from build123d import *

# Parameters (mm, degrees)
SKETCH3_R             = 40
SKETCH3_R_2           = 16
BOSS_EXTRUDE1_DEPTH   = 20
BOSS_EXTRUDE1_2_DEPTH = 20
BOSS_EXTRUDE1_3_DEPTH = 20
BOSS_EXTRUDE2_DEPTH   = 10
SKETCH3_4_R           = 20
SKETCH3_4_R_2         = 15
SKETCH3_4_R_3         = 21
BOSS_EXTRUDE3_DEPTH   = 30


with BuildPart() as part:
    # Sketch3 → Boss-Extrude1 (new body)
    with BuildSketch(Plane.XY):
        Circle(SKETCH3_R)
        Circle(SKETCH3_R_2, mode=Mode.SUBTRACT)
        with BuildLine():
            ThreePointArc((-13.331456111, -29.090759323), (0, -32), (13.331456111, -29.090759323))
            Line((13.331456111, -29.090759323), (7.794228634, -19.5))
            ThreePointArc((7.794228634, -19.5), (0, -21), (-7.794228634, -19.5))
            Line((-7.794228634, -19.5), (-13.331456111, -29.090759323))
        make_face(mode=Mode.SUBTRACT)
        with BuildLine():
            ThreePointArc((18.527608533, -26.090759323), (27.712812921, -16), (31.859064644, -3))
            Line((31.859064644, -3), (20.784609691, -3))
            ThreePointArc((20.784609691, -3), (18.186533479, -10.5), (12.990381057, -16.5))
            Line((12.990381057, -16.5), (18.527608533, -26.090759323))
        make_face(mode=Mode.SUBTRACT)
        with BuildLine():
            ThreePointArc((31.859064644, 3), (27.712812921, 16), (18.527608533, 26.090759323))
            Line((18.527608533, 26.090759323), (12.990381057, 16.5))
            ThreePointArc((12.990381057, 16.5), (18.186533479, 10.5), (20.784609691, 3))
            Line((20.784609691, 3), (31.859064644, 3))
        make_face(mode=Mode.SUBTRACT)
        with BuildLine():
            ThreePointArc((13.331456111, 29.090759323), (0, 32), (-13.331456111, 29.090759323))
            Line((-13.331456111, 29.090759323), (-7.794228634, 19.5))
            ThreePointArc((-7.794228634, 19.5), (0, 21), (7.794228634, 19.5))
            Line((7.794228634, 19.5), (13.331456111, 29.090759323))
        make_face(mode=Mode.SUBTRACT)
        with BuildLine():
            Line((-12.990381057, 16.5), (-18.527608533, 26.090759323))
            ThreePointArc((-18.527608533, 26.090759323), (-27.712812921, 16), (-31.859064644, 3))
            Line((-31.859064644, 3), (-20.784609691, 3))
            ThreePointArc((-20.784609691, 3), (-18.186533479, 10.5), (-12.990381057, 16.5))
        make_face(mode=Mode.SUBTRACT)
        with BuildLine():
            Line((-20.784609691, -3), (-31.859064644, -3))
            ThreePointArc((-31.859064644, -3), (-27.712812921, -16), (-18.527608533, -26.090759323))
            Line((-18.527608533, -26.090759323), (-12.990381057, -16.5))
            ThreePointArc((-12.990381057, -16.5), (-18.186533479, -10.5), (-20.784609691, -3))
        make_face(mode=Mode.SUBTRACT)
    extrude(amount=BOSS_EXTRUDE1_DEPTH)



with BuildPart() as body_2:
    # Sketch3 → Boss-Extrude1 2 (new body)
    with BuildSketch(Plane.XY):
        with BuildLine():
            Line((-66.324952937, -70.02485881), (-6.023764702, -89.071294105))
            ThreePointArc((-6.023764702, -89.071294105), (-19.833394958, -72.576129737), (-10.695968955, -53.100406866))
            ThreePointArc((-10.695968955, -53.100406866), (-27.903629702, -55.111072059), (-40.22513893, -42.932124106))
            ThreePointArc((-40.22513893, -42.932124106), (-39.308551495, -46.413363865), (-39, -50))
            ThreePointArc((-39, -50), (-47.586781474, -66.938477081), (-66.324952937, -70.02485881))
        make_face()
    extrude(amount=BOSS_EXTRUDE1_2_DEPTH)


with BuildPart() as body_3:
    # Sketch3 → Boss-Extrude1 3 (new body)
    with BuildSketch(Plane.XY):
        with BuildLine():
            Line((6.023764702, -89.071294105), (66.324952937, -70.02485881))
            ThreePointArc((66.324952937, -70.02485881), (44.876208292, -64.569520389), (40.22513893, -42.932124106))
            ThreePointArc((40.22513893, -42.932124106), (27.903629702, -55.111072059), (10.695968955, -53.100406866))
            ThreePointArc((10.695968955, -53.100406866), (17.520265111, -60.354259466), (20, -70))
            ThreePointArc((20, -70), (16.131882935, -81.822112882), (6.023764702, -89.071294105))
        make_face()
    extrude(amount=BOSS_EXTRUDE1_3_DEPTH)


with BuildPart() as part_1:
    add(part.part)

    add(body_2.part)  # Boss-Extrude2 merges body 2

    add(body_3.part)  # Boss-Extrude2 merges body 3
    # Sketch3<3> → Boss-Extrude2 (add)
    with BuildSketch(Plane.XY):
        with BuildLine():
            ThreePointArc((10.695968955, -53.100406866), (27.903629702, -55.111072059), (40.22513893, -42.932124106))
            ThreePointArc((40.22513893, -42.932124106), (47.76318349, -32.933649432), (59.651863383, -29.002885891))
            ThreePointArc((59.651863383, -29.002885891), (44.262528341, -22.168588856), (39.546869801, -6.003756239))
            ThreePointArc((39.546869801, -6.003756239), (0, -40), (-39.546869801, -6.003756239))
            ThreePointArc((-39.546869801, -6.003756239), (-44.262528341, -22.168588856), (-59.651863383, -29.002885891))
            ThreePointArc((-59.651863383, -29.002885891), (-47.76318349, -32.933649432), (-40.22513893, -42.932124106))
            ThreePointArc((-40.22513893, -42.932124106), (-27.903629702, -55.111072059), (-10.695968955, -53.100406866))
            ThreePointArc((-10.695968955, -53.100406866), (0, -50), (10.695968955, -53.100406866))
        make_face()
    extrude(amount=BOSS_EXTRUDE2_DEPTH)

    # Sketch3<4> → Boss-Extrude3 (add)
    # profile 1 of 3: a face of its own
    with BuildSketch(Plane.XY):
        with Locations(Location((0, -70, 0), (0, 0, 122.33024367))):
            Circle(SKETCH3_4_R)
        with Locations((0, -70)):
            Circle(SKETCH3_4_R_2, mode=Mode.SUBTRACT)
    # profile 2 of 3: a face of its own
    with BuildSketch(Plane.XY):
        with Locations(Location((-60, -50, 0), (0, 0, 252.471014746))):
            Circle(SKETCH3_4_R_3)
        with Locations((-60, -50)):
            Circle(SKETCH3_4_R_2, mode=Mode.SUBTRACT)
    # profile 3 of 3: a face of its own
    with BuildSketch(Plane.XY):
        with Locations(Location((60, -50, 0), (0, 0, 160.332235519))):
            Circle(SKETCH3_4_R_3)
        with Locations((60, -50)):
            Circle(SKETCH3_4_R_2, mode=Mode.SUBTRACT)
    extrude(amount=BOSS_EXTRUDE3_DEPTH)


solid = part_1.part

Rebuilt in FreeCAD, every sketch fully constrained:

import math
import FreeCAD as App
import Part
import Sketcher
from FreeCAD import Vector
Q = App.Units.Quantity

doc = App.newDocument("Part")
body = doc.addObject("PartDesign::Body", "Body")

# Sketch on XY plane
sketch1 = body.newObject("Sketcher::SketchObject", "Sketch")
sketch1.AttachmentSupport = (doc.getObject("XY_Plane"), [""])
sketch1.MapMode = "FlatFace"
sketch1.addGeometry(Part.Circle(Vector(0, 0, 0), Vector(0, 0, 1), 40), False)
sketch1.addGeometry(Part.ArcOfCircle(Part.Circle(Vector(0, 0, 0), Vector(0, 0, 1), 32), math.radians(-115), math.radians(-65)), False)
sketch1.addGeometry(Part.LineSegment(Vector(-13, -29, 0), Vector(-8, -20, 0)), False)
sketch1.addGeometry(Part.ArcOfCircle(Part.Circle(Vector(0, 0, 0), Vector(0, 0, 1), 21), math.radians(-112), math.radians(-68)), False)
sketch1.addGeometry(Part.LineSegment(Vector(8, -20, 0), Vector(13, -29, 0)), False)
sketch1.addGeometry(Part.LineSegment(Vector(-32, -3, 0), Vector(-21, -3, 0)), False)
sketch1.addGeometry(Part.ArcOfCircle(Part.Circle(Vector(0, 0, 0), Vector(0, 0, 1), 21), math.radians(-172), math.radians(-128)), False)
sketch1.addGeometry(Part.LineSegment(Vector(-13, -16, 0), Vector(-19, -26, 0)), False)
sketch1.addGeometry(Part.ArcOfCircle(Part.Circle(Vector(0, 0, 0), Vector(0, 0, 1), 32), math.radians(-175), math.radians(-125)), False)
sketch1.addGeometry(Part.ArcOfCircle(Part.Circle(Vector(0, 0, 0), Vector(0, 0, 1), 32), math.radians(-55), math.radians(-5)), False)
sketch1.addGeometry(Part.LineSegment(Vector(19, -26, 0), Vector(13, -16, 0)), False)
sketch1.addGeometry(Part.ArcOfCircle(Part.Circle(Vector(0, 0, 0), Vector(0, 0, 1), 21), math.radians(-52), math.radians(-8)), False)
sketch1.addGeometry(Part.LineSegment(Vector(21, -3, 0), Vector(32, -3, 0)), False)
sketch1.addGeometry(Part.LineSegment(Vector(-19, 26, 0), Vector(-13, 16, 0)), False)
sketch1.addGeometry(Part.ArcOfCircle(Part.Circle(Vector(0, 0, 0), Vector(0, 0, 1), 21), math.radians(128), math.radians(172)), False)
sketch1.addGeometry(Part.LineSegment(Vector(-21, 3, 0), Vector(-32, 3, 0)), False)
sketch1.addGeometry(Part.ArcOfCircle(Part.Circle(Vector(0, 0, 0), Vector(0, 0, 1), 32), math.radians(125), math.radians(175)), False)
sketch1.addGeometry(Part.Circle(Vector(0, 0, 0), Vector(0, 0, 1), 16), False)
sketch1.addGeometry(Part.ArcOfCircle(Part.Circle(Vector(0, 0, 0), Vector(0, 0, 1), 32), math.radians(5), math.radians(55)), False)
sketch1.addGeometry(Part.LineSegment(Vector(32, 3, 0), Vector(21, 3, 0)), False)
sketch1.addGeometry(Part.ArcOfCircle(Part.Circle(Vector(0, 0, 0), Vector(0, 0, 1), 21), math.radians(8), math.radians(52)), False)
sketch1.addGeometry(Part.LineSegment(Vector(13, 16, 0), Vector(19, 26, 0)), False)
sketch1.addGeometry(Part.ArcOfCircle(Part.Circle(Vector(0, 0, 0), Vector(0, 0, 1), 32), math.radians(65), math.radians(115)), False)
sketch1.addGeometry(Part.LineSegment(Vector(13, 29, 0), Vector(8, 20, 0)), False)
sketch1.addGeometry(Part.ArcOfCircle(Part.Circle(Vector(0, 0, 0), Vector(0, 0, 1), 21), math.radians(68), math.radians(112)), False)
sketch1.addGeometry(Part.LineSegment(Vector(-8, 20, 0), Vector(-13, 29, 0)), False)
sketch1.addConstraint(Sketcher.Constraint("Coincident", 1, 1, 2, 1))
sketch1.addConstraint(Sketcher.Constraint("Coincident", 2, 2, 3, 1))
sketch1.addConstraint(Sketcher.Constraint("Coincident", 3, 2, 4, 1))
sketch1.addConstraint(Sketcher.Constraint("Coincident", 4, 2, 1, 2))
sketch1.addConstraint(Sketcher.Constraint("Coincident", 5, 2, 6, 1))
sketch1.addConstraint(Sketcher.Constraint("Coincident", 6, 2, 7, 1))
sketch1.addConstraint(Sketcher.Constraint("Coincident", 7, 2, 8, 2))
sketch1.addConstraint(Sketcher.Constraint("Coincident", 8, 1, 5, 1))
sketch1.addConstraint(Sketcher.Constraint("Coincident", 9, 1, 10, 1))
sketch1.addConstraint(Sketcher.Constraint("Coincident", 10, 2, 11, 1))
sketch1.addConstraint(Sketcher.Constraint("Coincident", 11, 2, 12, 1))
sketch1.addConstraint(Sketcher.Constraint("Coincident", 12, 2, 9, 2))
sketch1.addConstraint(Sketcher.Constraint("Coincident", 13, 2, 14, 1))
sketch1.addConstraint(Sketcher.Constraint("Coincident", 14, 2, 15, 1))
sketch1.addConstraint(Sketcher.Constraint("Coincident", 15, 2, 16, 2))
sketch1.addConstraint(Sketcher.Constraint("Coincident", 16, 1, 13, 1))
sketch1.addConstraint(Sketcher.Constraint("Coincident", 18, 1, 19, 1))
sketch1.addConstraint(Sketcher.Constraint("Coincident", 19, 2, 20, 1))
sketch1.addConstraint(Sketcher.Constraint("Coincident", 20, 2, 21, 1))
sketch1.addConstraint(Sketcher.Constraint("Coincident", 21, 2, 18, 2))
sketch1.addConstraint(Sketcher.Constraint("Coincident", 22, 1, 23, 1))
sketch1.addConstraint(Sketcher.Constraint("Coincident", 23, 2, 24, 1))
sketch1.addConstraint(Sketcher.Constraint("Coincident", 24, 2, 25, 1))
sketch1.addConstraint(Sketcher.Constraint("Coincident", 25, 2, 22, 2))
sketch1.addConstraint(Sketcher.Constraint("Horizontal", 5))
sketch1.addConstraint(Sketcher.Constraint("Horizontal", 12))
sketch1.addConstraint(Sketcher.Constraint("Horizontal", 15))
sketch1.addConstraint(Sketcher.Constraint("Horizontal", 19))
sketch1.addConstraint(Sketcher.Constraint("Coincident", 0, 3, -1, 1))
sketch1.addConstraint(Sketcher.Constraint("Coincident", 1, 3, -1, 1))
sketch1.addConstraint(Sketcher.Constraint("Coincident", 3, 3, -1, 1))
sketch1.addConstraint(Sketcher.Constraint("Coincident", 6, 3, -1, 1))
sketch1.addConstraint(Sketcher.Constraint("Coincident", 8, 3, -1, 1))
sketch1.addConstraint(Sketcher.Constraint("Coincident", 9, 3, -1, 1))
sketch1.addConstraint(Sketcher.Constraint("Coincident", 11, 3, -1, 1))
sketch1.addConstraint(Sketcher.Constraint("Coincident", 14, 3, -1, 1))
sketch1.addConstraint(Sketcher.Constraint("Coincident", 16, 3, -1, 1))
sketch1.addConstraint(Sketcher.Constraint("Coincident", 17, 3, -1, 1))
sketch1.addConstraint(Sketcher.Constraint("Coincident", 18, 3, -1, 1))
sketch1.addConstraint(Sketcher.Constraint("Coincident", 20, 3, -1, 1))
sketch1.addConstraint(Sketcher.Constraint("Coincident", 22, 3, -1, 1))
sketch1.addConstraint(Sketcher.Constraint("Coincident", 24, 3, -1, 1))
sketch1.addConstraint(Sketcher.Constraint("Equal", 3, 6))
sketch1.addConstraint(Sketcher.Constraint("Equal", 1, 8))
sketch1.addConstraint(Sketcher.Constraint("Equal", 8, 9))
sketch1.addConstraint(Sketcher.Constraint("Equal", 6, 11))
sketch1.addConstraint(Sketcher.Constraint("Equal", 11, 14))
sketch1.addConstraint(Sketcher.Constraint("Equal", 9, 16))
sketch1.addConstraint(Sketcher.Constraint("Equal", 16, 18))
sketch1.addConstraint(Sketcher.Constraint("Equal", 14, 20))
sketch1.addConstraint(Sketcher.Constraint("Equal", 18, 22))
sketch1.addConstraint(Sketcher.Constraint("Equal", 20, 24))
sketch1.addConstraint(Sketcher.Constraint("Parallel", 2, 7))
sketch1.addConstraint(Sketcher.Constraint("Parallel", 4, 10))
sketch1.addConstraint(Sketcher.Constraint("Parallel", 10, 13))
sketch1.addConstraint(Sketcher.Constraint("Parallel", 7, 21))
sketch1.addConstraint(Sketcher.Constraint("Parallel", 21, 23))
sketch1.addConstraint(Sketcher.Constraint("Parallel", 13, 25))
sketch1.addConstraint(Sketcher.Constraint("Horizontal", 2, 2, 3, 2))
sketch1.addConstraint(Sketcher.Constraint("Horizontal", 1, 1, 4, 2))
sketch1.addConstraint(Sketcher.Constraint("Horizontal", 7, 2, 9, 1))
sketch1.addConstraint(Sketcher.Constraint("Horizontal", 8, 1, 11, 2))
sketch1.addConstraint(Sketcher.Constraint("Horizontal", 15, 2, 18, 1))
sketch1.addConstraint(Sketcher.Constraint("Horizontal", 13, 2, 20, 2))
sketch1.addConstraint(Sketcher.Constraint("Horizontal", 23, 2, 24, 2))
sketch1.addConstraint(Sketcher.Constraint("Vertical", 6, 2, 13, 2))
sketch1.addConstraint(Sketcher.Constraint("Vertical", 5, 2, 14, 2))
sketch1.addConstraint(Sketcher.Constraint("Vertical", 4, 2, 22, 1))
sketch1.addConstraint(Sketcher.Constraint("Equal", 4, 7))
sketch1.addConstraint(Sketcher.Constraint("Diameter", 0, 80.0))
sketch1.addConstraint(Sketcher.Constraint("Diameter", 17, 32.0))
sketch1.addConstraint(Sketcher.Constraint("Radius", 1, 32.0))
sketch1.addConstraint(Sketcher.Constraint("Radius", 3, 21.0))
sketch1.addConstraint(Sketcher.Constraint("Angle", 2, Q("60 deg")))
sketch1.addConstraint(Sketcher.Constraint("DistanceY", 5, 2, -1, 1, 3.0))
sketch1.addConstraint(Sketcher.Constraint("DistanceY", 2, 2, 6, 2, 3.0))
pad1 = body.newObject("PartDesign::Pad", "Pad")
pad1.Profile = sketch1
pad1.Length = 20
body2 = doc.addObject("PartDesign::Body", "Body001")

# Sketch on XY plane
sketch2 = body2.newObject("Sketcher::SketchObject", "Sketch001")
sketch2.AttachmentSupport = (doc.getObject("XY_Plane001"), [""])
sketch2.MapMode = "FlatFace"
sketch2.addGeometry(Part.LineSegment(Vector(-66, -70, 0), Vector(-6, -89, 0)), False)
sketch2.addGeometry(Part.ArcOfCircle(Part.Circle(Vector(0, -70, 0), Vector(0, 0, 1), 20), math.radians(122), math.radians(252)), False)
sketch2.addGeometry(Part.ArcOfCircle(Part.Circle(Vector(-21, -36, 0), Vector(0, 0, 1), 20), math.radians(-160), math.radians(-58)), False)
sketch2.addGeometry(Part.ArcOfCircle(Part.Circle(Vector(-60, -50, 0), Vector(0, 0, 1), 21), math.radians(0), math.radians(19.67)), False)
sketch2.addGeometry(Part.ArcOfCircle(Part.Circle(Vector(-60, -50, 0), Vector(0, 0, 1), 21), math.radians(-108), math.radians(0)), False)
sketch2.addConstraint(Sketcher.Constraint("Tangent", 0, 2, 1, 2))
sketch2.addConstraint(Sketcher.Constraint("Tangent", 1, 1, 2, 2))
sketch2.addConstraint(Sketcher.Constraint("Tangent", 2, 1, 3, 2))
sketch2.addConstraint(Sketcher.Constraint("Tangent", 3, 1, 4, 2))
sketch2.addConstraint(Sketcher.Constraint("Tangent", 4, 1, 0, 1))
sketch2.addConstraint(Sketcher.Constraint("Equal", 1, 2))
sketch2.addConstraint(Sketcher.Constraint("Equal", 3, 4))
sketch2.addConstraint(Sketcher.Constraint("PointOnObject", 1, 3, -2))
sketch2.addConstraint(Sketcher.Constraint("Horizontal", 4, 3, 3, 1))
sketch2.addConstraint(Sketcher.Constraint("Radius", 1, 20.0))
sketch2.addConstraint(Sketcher.Constraint("Radius", 3, 21.0))
sketch2.addConstraint(Sketcher.Constraint("DistanceY", 1, 3, -1, 1, 70.0))
sketch2.addConstraint(Sketcher.Constraint("DistanceX", 3, 3, -1, 1, 60.0))
sketch2.addConstraint(Sketcher.Constraint("DistanceY", 3, 3, -1, 1, 50.0))
pad2 = body2.newObject("PartDesign::Pad", "Pad001")
pad2.Profile = sketch2
pad2.Length = 20
body3 = doc.addObject("PartDesign::Body", "Body002")

# Sketch on XY plane
sketch3 = body3.newObject("Sketcher::SketchObject", "Sketch002")
sketch3.AttachmentSupport = (doc.getObject("XY_Plane002"), [""])
sketch3.MapMode = "FlatFace"
sketch3.addGeometry(Part.LineSegment(Vector(6, -89, 0), Vector(66, -70, 0)), False)
sketch3.addGeometry(Part.ArcOfCircle(Part.Circle(Vector(60, -50, 0), Vector(0, 0, 1), 21), math.radians(160), math.radians(288)), False)
sketch3.addGeometry(Part.ArcOfCircle(Part.Circle(Vector(21, -36, 0), Vector(0, 0, 1), 20), math.radians(-122), math.radians(-20)), False)
sketch3.addGeometry(Part.ArcOfCircle(Part.Circle(Vector(0, -70, 0), Vector(0, 0, 1), 20), math.radians(0), math.radians(58)), False)
sketch3.addGeometry(Part.ArcOfCircle(Part.Circle(Vector(0, -70, 0), Vector(0, 0, 1), 20), math.radians(-72), math.radians(0)), False)
sketch3.addConstraint(Sketcher.Constraint("Tangent", 0, 2, 1, 2))
sketch3.addConstraint(Sketcher.Constraint("Tangent", 1, 1, 2, 2))
sketch3.addConstraint(Sketcher.Constraint("Tangent", 2, 1, 3, 2))
sketch3.addConstraint(Sketcher.Constraint("Tangent", 3, 1, 4, 2))
sketch3.addConstraint(Sketcher.Constraint("Tangent", 4, 1, 0, 1))
sketch3.addConstraint(Sketcher.Constraint("Equal", 2, 3))
sketch3.addConstraint(Sketcher.Constraint("Equal", 3, 4))
sketch3.addConstraint(Sketcher.Constraint("PointOnObject", 3, 3, -2))
sketch3.addConstraint(Sketcher.Constraint("Horizontal", 4, 3, 3, 1))
sketch3.addConstraint(Sketcher.Constraint("Radius", 1, 21.0))
sketch3.addConstraint(Sketcher.Constraint("Radius", 2, 20.0))
sketch3.addConstraint(Sketcher.Constraint("DistanceX", -1, 1, 1, 3, 60.0))
sketch3.addConstraint(Sketcher.Constraint("DistanceY", 1, 3, -1, 1, 50.0))
sketch3.addConstraint(Sketcher.Constraint("DistanceY", 3, 3, -1, 1, 70.0))
pad3 = body3.newObject("PartDesign::Pad", "Pad002")
pad3.Profile = sketch3
pad3.Length = 20
body.AllowCompound = True
doc.recompute()

boolean = body.newObject("PartDesign::Boolean", "Boolean")
boolean.Type = "Fuse"
boolean.addObjects([body2])
doc.recompute()

boolean2 = body.newObject("PartDesign::Boolean", "Boolean001")
boolean2.Type = "Fuse"
boolean2.addObjects([body3])

# Sketch on XY plane
sketch4 = body.newObject("Sketcher::SketchObject", "Sketch003")
sketch4.AttachmentSupport = (doc.getObject("XY_Plane"), [""])
sketch4.MapMode = "FlatFace"
sketch4.addGeometry(Part.ArcOfCircle(Part.Circle(Vector(21, -36, 0), Vector(0, 0, 1), 20), math.radians(-122), math.radians(-20)), False)
sketch4.addGeometry(Part.ArcOfCircle(Part.Circle(Vector(60, -50, 0), Vector(0, 0, 1), 21), math.radians(91), math.radians(160)), False)
sketch4.addGeometry(Part.ArcOfCircle(Part.Circle(Vector(59, -9, 0), Vector(0, 0, 1), 20), math.radians(171), math.radians(271)), False)
sketch4.addGeometry(Part.ArcOfCircle(Part.Circle(Vector(0, 0, 0), Vector(0, 0, 1), 40), math.radians(-171), math.radians(-9)), False)
sketch4.addGeometry(Part.ArcOfCircle(Part.Circle(Vector(-59, -9, 0), Vector(0, 0, 1), 20), math.radians(-91), math.radians(9)), False)
sketch4.addGeometry(Part.ArcOfCircle(Part.Circle(Vector(-60, -50, 0), Vector(0, 0, 1), 21), math.radians(20), math.radians(89)), False)
sketch4.addGeometry(Part.ArcOfCircle(Part.Circle(Vector(-21, -36, 0), Vector(0, 0, 1), 20), math.radians(-160), math.radians(-58)), False)
sketch4.addGeometry(Part.ArcOfCircle(Part.Circle(Vector(0, -70, 0), Vector(0, 0, 1), 20), math.radians(58), math.radians(122)), False)
sketch4.addConstraint(Sketcher.Constraint("Tangent", 0, 2, 1, 2))
sketch4.addConstraint(Sketcher.Constraint("Tangent", 1, 1, 2, 2))
sketch4.addConstraint(Sketcher.Constraint("Tangent", 2, 1, 3, 2))
sketch4.addConstraint(Sketcher.Constraint("Tangent", 3, 1, 4, 2))
sketch4.addConstraint(Sketcher.Constraint("Tangent", 4, 1, 5, 2))
sketch4.addConstraint(Sketcher.Constraint("Tangent", 5, 1, 6, 1))
sketch4.addConstraint(Sketcher.Constraint("Tangent", 6, 2, 7, 2))
sketch4.addConstraint(Sketcher.Constraint("Tangent", 7, 1, 0, 1))
sketch4.addConstraint(Sketcher.Constraint("Coincident", 3, 3, -1, 1))
sketch4.addConstraint(Sketcher.Constraint("Equal", 0, 2))
sketch4.addConstraint(Sketcher.Constraint("Equal", 2, 4))
sketch4.addConstraint(Sketcher.Constraint("Equal", 1, 5))
sketch4.addConstraint(Sketcher.Constraint("Equal", 4, 6))
sketch4.addConstraint(Sketcher.Constraint("Equal", 6, 7))
sketch4.addConstraint(Sketcher.Constraint("Symmetric", 1, 3, 5, 3, -2))
sketch4.addConstraint(Sketcher.Constraint("PointOnObject", 7, 3, -2))
sketch4.addConstraint(Sketcher.Constraint("Radius", 0, 20.0))
sketch4.addConstraint(Sketcher.Constraint("Radius", 1, 21.0))
sketch4.addConstraint(Sketcher.Constraint("Radius", 3, 40.0))
sketch4.addConstraint(Sketcher.Constraint("DistanceX", -1, 1, 1, 3, 60.0))
sketch4.addConstraint(Sketcher.Constraint("DistanceY", 1, 3, -1, 1, 50.0))
sketch4.addConstraint(Sketcher.Constraint("DistanceY", 7, 3, -1, 1, 70.0))
pad4 = body.newObject("PartDesign::Pad", "Pad003")
pad4.Profile = sketch4
pad4.Length = 10

# Sketch on XY plane
sketch5 = body.newObject("Sketcher::SketchObject", "Sketch004")
sketch5.AttachmentSupport = (doc.getObject("XY_Plane"), [""])
sketch5.MapMode = "FlatFace"
sketch5.addGeometry(Part.Circle(Vector(0, -70, 0), Vector(0, 0, 1), 20), False)
sketch5.addGeometry(Part.Circle(Vector(0, -70, 0), Vector(0, 0, 1), 15), False)
sketch5.addGeometry(Part.Circle(Vector(-60, -50, 0), Vector(0, 0, 1), 21), False)
sketch5.addGeometry(Part.Circle(Vector(-60, -50, 0), Vector(0, 0, 1), 15), False)
sketch5.addGeometry(Part.Circle(Vector(60, -50, 0), Vector(0, 0, 1), 21), False)
sketch5.addGeometry(Part.Circle(Vector(60, -50, 0), Vector(0, 0, 1), 15), False)
sketch5.addConstraint(Sketcher.Constraint("Coincident", 1, 3, 0, 3))
sketch5.addConstraint(Sketcher.Constraint("Coincident", 3, 3, 2, 3))
sketch5.addConstraint(Sketcher.Constraint("Coincident", 5, 3, 4, 3))
sketch5.addConstraint(Sketcher.Constraint("Equal", 1, 3))
sketch5.addConstraint(Sketcher.Constraint("Equal", 2, 4))
sketch5.addConstraint(Sketcher.Constraint("Equal", 3, 5))
sketch5.addConstraint(Sketcher.Constraint("Symmetric", 2, 3, 4, 3, -2))
sketch5.addConstraint(Sketcher.Constraint("PointOnObject", 0, 3, -2))
sketch5.addConstraint(Sketcher.Constraint("Diameter", 0, 40.0))
sketch5.addConstraint(Sketcher.Constraint("Diameter", 1, 30.0))
sketch5.addConstraint(Sketcher.Constraint("Diameter", 2, 42.0))
sketch5.addConstraint(Sketcher.Constraint("DistanceY", 0, 3, -1, 1, 70.0))
sketch5.addConstraint(Sketcher.Constraint("DistanceX", 2, 3, -1, 1, 60.0))
sketch5.addConstraint(Sketcher.Constraint("DistanceY", 2, 3, -1, 1, 50.0))
pad5 = body.newObject("PartDesign::Pad", "Pad004")
pad5.Profile = sketch5
pad5.Length = 30

doc.recompute()
